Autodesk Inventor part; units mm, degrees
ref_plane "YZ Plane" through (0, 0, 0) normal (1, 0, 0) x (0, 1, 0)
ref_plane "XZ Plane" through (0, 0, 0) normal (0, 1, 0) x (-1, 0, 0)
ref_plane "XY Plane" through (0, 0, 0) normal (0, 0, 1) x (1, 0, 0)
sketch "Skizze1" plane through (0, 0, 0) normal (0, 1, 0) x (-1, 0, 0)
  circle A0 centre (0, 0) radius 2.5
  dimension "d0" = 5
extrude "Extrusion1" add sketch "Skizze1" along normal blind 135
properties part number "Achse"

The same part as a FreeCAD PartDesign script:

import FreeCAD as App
import Part
import Sketcher
from FreeCAD import Vector

doc = App.newDocument("Part")
body = doc.addObject("PartDesign::Body", "Body")

# Sketch on XZ plane
sketch1 = doc.addObject("Sketcher::SketchObject", "Sketch")
body.addObject(sketch1)
sketch1.AttachmentSupport = (doc.XZ_Plane, [""])
sketch1.MapMode = "FlatFace"
sketch1.addGeometry(Part.Circle(Vector(0, 0, 0), Vector(0, 0, 1), 2.5), False)
sketch1.addConstraint(Sketcher.Constraint("Coincident", 0, 3, -1, 1))
sketch1.addConstraint(Sketcher.Constraint("Diameter", 0, 5.0))
pad1 = doc.addObject("PartDesign::Pad", "Pad")
body.addObject(pad1)
pad1.Profile = sketch1
pad1.Length = 135
pad1.Reversed = True

doc.recompute()
